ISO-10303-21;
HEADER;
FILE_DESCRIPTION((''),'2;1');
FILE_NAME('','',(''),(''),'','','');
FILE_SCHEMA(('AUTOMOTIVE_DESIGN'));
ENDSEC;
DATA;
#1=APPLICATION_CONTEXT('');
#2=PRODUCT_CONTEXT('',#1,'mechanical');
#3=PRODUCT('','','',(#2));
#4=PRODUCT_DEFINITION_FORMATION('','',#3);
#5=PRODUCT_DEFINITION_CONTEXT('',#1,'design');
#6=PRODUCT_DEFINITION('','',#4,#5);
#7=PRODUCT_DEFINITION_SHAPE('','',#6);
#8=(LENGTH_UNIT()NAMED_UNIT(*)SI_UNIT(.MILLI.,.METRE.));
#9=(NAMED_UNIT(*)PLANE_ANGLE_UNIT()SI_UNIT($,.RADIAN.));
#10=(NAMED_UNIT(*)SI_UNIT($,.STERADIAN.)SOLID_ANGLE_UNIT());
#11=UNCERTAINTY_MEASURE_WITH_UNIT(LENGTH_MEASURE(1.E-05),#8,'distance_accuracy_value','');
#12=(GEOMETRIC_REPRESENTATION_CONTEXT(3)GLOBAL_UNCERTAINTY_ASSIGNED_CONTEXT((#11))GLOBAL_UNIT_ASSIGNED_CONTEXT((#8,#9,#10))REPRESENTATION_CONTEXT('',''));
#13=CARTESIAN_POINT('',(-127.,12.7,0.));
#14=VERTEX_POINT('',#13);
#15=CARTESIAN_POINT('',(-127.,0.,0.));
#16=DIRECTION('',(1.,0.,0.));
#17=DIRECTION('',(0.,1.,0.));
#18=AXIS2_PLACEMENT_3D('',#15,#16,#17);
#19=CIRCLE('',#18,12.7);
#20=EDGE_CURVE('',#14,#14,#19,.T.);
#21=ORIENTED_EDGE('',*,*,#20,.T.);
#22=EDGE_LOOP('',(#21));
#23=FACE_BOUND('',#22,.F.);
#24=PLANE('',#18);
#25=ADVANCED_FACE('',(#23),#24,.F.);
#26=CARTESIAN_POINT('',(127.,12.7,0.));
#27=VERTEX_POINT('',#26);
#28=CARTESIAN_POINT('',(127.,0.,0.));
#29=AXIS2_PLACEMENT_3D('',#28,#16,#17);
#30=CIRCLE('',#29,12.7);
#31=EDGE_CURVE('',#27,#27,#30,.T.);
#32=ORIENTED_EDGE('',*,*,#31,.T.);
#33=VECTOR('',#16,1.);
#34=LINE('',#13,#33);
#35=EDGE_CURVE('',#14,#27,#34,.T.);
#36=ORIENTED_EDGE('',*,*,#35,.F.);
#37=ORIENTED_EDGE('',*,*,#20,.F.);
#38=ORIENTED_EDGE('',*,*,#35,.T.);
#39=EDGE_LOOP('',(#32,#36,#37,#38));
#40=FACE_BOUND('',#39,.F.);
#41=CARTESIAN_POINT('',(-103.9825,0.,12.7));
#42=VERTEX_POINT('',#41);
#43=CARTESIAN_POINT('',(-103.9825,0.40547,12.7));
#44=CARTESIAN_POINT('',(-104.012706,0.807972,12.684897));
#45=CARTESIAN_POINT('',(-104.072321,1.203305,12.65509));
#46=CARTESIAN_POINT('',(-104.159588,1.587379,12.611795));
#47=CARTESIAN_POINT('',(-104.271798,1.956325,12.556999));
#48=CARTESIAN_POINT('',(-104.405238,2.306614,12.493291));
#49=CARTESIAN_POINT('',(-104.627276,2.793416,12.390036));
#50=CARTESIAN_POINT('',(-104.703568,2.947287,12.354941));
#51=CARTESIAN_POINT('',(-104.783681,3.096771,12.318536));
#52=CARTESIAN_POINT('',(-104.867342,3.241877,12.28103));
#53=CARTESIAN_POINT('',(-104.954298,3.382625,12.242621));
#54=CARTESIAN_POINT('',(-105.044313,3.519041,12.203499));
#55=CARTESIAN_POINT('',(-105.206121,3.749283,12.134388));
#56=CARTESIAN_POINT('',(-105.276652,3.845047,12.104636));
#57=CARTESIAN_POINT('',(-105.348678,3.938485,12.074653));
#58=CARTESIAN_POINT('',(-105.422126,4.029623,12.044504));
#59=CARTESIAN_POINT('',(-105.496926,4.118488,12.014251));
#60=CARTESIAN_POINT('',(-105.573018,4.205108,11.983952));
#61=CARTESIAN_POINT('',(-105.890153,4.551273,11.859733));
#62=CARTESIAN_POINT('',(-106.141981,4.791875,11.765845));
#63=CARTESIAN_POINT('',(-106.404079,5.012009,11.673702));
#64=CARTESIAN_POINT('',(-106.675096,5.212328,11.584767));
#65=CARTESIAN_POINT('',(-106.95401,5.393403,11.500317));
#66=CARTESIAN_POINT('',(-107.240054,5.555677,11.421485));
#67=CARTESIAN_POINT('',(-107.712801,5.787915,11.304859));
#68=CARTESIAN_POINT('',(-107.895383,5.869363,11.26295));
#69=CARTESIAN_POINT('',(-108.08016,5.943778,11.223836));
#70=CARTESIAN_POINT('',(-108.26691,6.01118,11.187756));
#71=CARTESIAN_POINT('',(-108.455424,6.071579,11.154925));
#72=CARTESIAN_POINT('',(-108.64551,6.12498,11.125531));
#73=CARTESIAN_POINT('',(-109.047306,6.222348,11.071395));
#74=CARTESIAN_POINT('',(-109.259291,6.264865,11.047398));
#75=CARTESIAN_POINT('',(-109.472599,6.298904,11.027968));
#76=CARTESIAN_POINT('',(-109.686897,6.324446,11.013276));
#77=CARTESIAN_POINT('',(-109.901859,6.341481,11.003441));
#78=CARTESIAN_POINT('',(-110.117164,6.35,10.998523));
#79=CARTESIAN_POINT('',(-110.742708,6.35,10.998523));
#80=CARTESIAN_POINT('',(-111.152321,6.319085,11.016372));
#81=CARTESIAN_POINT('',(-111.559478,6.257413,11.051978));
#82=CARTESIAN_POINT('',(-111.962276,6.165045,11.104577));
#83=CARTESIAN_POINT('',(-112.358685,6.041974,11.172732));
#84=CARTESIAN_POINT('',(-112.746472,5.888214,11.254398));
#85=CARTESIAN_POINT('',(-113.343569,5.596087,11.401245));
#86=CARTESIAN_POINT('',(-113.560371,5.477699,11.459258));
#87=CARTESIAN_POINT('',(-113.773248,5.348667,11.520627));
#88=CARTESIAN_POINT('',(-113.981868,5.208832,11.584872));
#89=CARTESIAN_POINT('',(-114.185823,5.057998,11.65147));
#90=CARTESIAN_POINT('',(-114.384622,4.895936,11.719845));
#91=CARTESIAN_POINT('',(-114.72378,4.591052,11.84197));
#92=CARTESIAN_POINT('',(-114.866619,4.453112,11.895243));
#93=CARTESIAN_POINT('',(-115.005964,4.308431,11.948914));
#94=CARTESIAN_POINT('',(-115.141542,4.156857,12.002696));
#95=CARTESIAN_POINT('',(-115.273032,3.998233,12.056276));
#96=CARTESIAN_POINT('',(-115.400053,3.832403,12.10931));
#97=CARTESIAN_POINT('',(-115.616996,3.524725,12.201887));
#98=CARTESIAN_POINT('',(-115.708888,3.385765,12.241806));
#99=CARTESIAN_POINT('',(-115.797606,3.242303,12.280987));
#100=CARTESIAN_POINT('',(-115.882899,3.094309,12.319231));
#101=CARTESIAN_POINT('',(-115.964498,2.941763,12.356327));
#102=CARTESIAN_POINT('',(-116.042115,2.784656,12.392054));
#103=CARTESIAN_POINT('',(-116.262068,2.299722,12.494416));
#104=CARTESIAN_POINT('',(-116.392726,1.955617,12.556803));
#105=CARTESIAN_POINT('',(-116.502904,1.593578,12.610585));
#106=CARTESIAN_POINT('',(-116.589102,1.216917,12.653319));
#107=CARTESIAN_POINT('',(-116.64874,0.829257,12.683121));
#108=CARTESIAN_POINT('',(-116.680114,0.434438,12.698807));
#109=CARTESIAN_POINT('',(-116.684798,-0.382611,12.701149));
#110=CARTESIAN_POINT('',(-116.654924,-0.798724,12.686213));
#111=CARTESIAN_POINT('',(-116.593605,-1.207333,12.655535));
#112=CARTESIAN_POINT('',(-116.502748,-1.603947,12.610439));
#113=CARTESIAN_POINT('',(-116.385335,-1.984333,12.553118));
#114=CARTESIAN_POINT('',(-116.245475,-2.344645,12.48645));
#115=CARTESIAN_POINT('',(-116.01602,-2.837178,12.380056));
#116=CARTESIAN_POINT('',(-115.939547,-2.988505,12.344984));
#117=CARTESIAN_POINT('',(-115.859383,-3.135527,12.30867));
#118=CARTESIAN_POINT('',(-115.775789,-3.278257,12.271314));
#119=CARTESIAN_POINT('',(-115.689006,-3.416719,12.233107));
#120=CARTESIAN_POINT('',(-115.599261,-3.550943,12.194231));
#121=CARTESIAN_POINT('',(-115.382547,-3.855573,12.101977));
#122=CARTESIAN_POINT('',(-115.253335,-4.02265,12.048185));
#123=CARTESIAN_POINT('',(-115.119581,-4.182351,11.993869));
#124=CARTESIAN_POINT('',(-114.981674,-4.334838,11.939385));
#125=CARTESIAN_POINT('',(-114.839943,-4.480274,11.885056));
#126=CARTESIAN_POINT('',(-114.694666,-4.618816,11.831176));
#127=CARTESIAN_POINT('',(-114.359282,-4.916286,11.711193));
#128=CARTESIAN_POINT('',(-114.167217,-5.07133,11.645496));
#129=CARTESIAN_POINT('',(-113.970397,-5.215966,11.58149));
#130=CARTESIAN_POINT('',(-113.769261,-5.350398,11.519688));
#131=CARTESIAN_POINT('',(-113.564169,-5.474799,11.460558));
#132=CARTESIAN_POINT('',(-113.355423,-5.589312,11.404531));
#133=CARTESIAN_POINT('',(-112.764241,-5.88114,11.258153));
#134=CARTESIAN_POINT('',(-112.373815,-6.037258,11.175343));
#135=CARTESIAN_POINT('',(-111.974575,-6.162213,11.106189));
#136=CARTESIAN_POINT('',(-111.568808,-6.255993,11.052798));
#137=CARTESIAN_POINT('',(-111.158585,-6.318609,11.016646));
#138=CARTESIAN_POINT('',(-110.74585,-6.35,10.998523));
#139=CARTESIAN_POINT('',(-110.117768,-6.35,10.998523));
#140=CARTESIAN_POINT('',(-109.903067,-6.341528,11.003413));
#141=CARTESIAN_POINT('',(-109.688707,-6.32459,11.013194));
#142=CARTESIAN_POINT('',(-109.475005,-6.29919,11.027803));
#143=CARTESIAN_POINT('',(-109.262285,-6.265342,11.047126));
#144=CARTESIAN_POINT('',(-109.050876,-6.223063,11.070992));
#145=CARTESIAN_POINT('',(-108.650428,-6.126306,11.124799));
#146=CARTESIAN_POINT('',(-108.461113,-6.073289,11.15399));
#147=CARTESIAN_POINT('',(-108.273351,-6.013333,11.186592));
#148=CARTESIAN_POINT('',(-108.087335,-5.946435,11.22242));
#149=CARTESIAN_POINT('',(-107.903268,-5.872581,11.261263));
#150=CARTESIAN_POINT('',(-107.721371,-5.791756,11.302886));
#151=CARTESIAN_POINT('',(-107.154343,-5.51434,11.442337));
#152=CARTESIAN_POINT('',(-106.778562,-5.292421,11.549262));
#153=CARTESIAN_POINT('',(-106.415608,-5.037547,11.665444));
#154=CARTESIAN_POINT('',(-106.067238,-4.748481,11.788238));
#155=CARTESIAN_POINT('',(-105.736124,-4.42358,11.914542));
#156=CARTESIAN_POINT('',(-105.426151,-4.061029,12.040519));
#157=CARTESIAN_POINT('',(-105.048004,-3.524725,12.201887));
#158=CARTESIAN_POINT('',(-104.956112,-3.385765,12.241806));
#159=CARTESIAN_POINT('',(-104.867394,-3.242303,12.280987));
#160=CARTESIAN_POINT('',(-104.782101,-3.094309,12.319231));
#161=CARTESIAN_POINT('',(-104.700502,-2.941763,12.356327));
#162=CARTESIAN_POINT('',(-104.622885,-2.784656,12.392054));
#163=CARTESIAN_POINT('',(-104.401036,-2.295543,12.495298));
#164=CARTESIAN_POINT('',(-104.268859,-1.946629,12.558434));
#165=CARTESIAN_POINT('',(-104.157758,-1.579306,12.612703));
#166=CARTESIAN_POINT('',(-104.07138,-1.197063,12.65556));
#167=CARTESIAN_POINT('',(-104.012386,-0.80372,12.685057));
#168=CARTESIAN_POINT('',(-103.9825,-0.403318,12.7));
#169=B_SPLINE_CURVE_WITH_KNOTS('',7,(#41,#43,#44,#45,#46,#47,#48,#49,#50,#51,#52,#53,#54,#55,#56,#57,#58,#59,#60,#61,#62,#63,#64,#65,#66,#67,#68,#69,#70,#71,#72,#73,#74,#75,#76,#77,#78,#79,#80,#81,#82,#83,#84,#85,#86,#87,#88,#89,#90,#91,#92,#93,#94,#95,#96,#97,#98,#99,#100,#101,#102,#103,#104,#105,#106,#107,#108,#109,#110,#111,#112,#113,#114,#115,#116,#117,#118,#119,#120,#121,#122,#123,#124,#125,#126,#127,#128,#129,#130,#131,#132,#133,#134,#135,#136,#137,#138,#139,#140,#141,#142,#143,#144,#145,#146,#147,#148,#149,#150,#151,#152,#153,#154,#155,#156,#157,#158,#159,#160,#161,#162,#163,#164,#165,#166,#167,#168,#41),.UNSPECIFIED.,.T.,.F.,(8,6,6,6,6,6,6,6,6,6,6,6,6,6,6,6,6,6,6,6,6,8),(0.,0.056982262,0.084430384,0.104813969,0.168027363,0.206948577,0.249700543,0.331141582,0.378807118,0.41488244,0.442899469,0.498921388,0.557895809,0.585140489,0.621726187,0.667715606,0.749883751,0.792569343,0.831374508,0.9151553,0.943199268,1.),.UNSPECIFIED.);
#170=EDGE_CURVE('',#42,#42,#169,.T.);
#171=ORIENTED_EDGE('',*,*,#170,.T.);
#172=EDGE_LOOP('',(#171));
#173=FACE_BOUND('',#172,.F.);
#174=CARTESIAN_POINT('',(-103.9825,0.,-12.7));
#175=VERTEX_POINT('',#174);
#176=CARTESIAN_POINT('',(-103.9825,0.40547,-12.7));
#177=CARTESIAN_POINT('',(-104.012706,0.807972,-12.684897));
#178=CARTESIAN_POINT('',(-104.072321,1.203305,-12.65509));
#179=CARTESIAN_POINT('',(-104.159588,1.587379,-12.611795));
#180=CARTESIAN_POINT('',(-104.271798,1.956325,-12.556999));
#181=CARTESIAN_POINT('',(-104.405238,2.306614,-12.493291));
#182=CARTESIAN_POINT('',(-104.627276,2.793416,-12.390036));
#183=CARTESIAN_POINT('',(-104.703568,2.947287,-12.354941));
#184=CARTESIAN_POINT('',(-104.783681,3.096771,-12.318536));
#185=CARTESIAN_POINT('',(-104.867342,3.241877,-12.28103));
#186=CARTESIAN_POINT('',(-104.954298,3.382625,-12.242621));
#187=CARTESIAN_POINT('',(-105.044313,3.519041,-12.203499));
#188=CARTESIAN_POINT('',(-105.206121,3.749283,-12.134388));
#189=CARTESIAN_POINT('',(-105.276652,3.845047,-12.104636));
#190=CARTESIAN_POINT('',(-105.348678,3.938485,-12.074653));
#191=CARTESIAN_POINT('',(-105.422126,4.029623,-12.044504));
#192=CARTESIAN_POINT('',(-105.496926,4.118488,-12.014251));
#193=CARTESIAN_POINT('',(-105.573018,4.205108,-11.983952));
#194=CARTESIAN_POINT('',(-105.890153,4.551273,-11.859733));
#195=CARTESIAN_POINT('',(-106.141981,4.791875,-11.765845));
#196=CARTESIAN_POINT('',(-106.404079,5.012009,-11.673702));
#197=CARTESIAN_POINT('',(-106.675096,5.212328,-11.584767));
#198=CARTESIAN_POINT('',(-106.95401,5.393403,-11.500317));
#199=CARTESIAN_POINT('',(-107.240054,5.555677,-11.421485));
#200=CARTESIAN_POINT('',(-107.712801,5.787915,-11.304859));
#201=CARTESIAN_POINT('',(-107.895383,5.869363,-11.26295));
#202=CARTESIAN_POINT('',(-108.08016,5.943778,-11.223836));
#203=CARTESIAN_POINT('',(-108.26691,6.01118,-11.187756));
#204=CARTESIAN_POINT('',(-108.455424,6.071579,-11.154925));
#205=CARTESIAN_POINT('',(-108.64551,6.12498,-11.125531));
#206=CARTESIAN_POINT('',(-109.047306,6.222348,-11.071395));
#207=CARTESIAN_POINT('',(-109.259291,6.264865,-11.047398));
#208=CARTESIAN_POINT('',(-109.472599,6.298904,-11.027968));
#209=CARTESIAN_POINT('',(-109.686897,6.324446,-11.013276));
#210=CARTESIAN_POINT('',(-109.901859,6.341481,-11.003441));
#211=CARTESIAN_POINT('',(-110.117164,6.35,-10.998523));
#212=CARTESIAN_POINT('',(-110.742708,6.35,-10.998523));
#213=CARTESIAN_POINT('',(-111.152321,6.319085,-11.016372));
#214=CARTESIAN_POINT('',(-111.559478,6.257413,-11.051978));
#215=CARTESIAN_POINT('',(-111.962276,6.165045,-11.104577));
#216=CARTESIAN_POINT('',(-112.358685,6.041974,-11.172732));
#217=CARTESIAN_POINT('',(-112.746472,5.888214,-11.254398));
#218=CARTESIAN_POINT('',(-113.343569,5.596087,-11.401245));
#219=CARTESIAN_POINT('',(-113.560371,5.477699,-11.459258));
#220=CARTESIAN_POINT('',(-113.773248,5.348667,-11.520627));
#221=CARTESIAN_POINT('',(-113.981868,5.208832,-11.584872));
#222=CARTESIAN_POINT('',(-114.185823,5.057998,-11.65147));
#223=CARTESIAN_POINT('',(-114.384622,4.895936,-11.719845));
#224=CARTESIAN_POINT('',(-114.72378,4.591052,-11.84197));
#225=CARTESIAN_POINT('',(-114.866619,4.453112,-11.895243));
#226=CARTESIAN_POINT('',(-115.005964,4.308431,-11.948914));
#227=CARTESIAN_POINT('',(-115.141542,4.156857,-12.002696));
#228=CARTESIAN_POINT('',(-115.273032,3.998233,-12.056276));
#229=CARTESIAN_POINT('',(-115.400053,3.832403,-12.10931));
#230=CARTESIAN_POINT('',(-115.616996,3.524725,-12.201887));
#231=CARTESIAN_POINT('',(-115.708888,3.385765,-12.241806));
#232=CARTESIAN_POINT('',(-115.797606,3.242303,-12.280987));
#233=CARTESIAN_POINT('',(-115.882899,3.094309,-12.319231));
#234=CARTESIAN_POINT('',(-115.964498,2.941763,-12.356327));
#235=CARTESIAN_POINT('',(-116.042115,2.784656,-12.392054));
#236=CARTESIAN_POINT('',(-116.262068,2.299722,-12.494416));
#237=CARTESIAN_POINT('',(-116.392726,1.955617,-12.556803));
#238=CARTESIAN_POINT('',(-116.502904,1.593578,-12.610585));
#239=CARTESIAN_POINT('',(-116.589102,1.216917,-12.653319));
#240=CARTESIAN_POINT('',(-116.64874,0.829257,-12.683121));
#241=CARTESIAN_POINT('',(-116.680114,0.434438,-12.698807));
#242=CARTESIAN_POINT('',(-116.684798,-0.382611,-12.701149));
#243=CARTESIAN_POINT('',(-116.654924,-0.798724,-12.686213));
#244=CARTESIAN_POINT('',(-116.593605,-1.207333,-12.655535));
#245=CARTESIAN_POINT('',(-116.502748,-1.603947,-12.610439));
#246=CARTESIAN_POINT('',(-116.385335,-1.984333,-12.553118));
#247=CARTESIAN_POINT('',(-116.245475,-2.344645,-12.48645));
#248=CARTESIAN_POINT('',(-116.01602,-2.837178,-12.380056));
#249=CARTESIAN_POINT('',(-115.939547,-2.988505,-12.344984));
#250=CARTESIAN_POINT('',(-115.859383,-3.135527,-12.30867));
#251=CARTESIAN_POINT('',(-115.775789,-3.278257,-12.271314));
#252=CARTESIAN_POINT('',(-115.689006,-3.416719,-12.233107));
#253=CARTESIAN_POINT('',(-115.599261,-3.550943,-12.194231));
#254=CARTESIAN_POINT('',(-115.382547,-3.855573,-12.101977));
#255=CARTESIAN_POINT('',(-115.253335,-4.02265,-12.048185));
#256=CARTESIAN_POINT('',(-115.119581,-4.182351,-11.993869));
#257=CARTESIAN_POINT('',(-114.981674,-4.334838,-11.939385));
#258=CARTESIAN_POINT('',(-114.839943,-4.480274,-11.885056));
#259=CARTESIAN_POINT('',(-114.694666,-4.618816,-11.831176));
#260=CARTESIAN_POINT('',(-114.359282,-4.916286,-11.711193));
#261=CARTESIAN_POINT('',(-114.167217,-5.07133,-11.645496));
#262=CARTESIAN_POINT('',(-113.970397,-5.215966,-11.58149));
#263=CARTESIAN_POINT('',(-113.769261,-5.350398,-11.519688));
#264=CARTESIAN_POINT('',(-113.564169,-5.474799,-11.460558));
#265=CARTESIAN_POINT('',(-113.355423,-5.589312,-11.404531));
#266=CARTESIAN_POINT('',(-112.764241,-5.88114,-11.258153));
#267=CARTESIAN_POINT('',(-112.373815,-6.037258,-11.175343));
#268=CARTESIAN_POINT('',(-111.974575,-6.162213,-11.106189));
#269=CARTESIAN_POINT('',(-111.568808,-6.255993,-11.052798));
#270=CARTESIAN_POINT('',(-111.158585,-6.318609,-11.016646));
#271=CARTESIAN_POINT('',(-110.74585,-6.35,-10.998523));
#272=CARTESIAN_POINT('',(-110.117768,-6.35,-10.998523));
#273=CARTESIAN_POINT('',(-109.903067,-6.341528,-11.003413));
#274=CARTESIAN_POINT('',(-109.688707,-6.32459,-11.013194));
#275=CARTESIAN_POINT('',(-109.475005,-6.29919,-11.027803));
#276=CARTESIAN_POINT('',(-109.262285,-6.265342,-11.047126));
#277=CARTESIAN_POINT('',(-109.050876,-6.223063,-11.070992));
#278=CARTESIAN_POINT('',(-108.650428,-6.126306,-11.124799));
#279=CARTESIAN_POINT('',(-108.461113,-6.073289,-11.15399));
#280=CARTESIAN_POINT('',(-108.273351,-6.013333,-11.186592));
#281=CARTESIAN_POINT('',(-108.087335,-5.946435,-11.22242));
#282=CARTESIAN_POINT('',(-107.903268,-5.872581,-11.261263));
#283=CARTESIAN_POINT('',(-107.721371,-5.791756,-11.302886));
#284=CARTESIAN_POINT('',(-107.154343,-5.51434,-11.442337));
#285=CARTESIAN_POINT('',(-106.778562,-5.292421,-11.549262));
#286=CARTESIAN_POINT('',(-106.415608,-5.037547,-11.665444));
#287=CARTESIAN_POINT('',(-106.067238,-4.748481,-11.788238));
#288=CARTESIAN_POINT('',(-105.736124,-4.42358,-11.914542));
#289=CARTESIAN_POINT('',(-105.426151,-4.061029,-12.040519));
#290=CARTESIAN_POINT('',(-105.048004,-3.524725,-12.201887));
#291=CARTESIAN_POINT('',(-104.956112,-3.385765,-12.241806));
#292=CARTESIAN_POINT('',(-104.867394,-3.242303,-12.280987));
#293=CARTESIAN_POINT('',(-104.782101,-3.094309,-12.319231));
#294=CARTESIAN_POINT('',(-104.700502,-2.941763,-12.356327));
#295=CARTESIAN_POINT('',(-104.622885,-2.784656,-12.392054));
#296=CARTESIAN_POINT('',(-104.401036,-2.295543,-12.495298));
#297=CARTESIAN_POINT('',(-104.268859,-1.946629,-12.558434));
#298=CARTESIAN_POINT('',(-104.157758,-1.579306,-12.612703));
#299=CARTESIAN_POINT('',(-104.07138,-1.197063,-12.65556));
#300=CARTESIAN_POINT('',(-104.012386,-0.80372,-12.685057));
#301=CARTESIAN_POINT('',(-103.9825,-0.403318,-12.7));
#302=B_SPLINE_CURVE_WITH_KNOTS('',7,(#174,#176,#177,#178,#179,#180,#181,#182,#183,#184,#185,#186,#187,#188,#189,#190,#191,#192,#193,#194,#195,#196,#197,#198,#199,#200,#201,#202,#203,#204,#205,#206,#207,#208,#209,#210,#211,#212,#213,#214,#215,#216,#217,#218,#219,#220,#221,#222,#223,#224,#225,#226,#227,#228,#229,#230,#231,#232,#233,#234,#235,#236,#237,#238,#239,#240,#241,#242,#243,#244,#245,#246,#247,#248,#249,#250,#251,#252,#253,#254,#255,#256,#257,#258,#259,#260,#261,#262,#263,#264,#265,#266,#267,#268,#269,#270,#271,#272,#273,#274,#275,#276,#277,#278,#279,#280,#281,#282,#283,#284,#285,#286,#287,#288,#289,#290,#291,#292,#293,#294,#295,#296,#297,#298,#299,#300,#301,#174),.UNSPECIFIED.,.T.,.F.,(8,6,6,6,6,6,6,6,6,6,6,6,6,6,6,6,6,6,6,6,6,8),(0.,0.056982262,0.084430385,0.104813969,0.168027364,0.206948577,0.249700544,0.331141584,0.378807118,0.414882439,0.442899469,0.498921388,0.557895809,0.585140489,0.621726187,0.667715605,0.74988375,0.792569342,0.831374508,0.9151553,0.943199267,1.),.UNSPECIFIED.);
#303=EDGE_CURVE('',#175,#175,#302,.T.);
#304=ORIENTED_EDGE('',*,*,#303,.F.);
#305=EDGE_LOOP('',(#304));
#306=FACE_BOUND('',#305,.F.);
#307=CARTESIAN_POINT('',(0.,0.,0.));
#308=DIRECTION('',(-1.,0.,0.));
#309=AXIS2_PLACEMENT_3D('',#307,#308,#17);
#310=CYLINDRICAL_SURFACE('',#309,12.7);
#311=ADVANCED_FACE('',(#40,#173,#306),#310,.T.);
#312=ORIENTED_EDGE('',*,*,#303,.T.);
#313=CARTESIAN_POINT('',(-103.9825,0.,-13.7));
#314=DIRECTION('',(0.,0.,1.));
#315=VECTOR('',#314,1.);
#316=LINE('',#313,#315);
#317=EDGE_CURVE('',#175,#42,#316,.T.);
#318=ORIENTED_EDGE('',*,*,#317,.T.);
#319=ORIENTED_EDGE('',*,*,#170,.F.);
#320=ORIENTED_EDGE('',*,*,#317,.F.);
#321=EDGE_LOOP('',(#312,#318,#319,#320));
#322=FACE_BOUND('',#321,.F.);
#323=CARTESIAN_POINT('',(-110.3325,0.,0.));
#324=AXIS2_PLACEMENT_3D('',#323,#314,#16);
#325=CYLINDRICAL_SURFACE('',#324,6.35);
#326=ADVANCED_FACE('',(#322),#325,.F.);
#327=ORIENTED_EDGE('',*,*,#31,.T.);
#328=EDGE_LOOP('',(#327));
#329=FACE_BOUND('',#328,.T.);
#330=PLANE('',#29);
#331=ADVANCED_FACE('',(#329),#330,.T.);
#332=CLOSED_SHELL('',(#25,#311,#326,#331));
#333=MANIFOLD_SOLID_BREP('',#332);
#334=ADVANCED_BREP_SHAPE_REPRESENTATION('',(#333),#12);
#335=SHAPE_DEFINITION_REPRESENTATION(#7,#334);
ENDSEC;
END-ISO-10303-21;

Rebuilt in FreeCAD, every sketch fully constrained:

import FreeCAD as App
import Part
import Sketcher

V = App.Vector
Q = App.Units.Quantity

doc = App.newDocument("Part")
body = doc.addObject("PartDesign::Body", "Body")

sketch1 = body.newObject("Sketcher::SketchObject", "Sketch")
sketch1.AttachmentSupport = (doc.getObject("YZ_Plane"), [""])
sketch1.MapMode = "FlatFace"
sketch1.addGeometry(Part.Circle(V(0, 0, 0), V(0, 0, 1), 13), False)
sketch1.addConstraint(Sketcher.Constraint("Coincident", 0, 3, -1, 1))
sketch1.addConstraint(Sketcher.Constraint("Diameter", 0, Q("1 in")))
pad1 = body.newObject("PartDesign::Pad", "Pad")
pad1.Profile = sketch1
pad1.Length = Q("10 in")
pad1.Midplane = True

sketch2 = body.newObject("Sketcher::SketchObject", "Sketch001")
sketch2.AttachmentSupport = (doc.getObject("XY_Plane"), [""])
sketch2.MapMode = "FlatFace"
sketch2.addGeometry(Part.Circle(V(-110, 0, 0), V(0, 0, 1), 6), False)
sketch2.addConstraint(Sketcher.Constraint("PointOnObject", 0, 3, -1))
sketch2.addConstraint(Sketcher.Constraint("Diameter", 0, Q("0.5 in")))
sketch2.addConstraint(Sketcher.Constraint("DistanceX", 0, 3, -1, 1, Q("4.3438 in")))
pocket1 = body.newObject("PartDesign::Pocket", "Pocket")
pocket1.Profile = sketch2
pocket1.Type = "ThroughAll"
pocket1.Midplane = True

doc.recompute()
